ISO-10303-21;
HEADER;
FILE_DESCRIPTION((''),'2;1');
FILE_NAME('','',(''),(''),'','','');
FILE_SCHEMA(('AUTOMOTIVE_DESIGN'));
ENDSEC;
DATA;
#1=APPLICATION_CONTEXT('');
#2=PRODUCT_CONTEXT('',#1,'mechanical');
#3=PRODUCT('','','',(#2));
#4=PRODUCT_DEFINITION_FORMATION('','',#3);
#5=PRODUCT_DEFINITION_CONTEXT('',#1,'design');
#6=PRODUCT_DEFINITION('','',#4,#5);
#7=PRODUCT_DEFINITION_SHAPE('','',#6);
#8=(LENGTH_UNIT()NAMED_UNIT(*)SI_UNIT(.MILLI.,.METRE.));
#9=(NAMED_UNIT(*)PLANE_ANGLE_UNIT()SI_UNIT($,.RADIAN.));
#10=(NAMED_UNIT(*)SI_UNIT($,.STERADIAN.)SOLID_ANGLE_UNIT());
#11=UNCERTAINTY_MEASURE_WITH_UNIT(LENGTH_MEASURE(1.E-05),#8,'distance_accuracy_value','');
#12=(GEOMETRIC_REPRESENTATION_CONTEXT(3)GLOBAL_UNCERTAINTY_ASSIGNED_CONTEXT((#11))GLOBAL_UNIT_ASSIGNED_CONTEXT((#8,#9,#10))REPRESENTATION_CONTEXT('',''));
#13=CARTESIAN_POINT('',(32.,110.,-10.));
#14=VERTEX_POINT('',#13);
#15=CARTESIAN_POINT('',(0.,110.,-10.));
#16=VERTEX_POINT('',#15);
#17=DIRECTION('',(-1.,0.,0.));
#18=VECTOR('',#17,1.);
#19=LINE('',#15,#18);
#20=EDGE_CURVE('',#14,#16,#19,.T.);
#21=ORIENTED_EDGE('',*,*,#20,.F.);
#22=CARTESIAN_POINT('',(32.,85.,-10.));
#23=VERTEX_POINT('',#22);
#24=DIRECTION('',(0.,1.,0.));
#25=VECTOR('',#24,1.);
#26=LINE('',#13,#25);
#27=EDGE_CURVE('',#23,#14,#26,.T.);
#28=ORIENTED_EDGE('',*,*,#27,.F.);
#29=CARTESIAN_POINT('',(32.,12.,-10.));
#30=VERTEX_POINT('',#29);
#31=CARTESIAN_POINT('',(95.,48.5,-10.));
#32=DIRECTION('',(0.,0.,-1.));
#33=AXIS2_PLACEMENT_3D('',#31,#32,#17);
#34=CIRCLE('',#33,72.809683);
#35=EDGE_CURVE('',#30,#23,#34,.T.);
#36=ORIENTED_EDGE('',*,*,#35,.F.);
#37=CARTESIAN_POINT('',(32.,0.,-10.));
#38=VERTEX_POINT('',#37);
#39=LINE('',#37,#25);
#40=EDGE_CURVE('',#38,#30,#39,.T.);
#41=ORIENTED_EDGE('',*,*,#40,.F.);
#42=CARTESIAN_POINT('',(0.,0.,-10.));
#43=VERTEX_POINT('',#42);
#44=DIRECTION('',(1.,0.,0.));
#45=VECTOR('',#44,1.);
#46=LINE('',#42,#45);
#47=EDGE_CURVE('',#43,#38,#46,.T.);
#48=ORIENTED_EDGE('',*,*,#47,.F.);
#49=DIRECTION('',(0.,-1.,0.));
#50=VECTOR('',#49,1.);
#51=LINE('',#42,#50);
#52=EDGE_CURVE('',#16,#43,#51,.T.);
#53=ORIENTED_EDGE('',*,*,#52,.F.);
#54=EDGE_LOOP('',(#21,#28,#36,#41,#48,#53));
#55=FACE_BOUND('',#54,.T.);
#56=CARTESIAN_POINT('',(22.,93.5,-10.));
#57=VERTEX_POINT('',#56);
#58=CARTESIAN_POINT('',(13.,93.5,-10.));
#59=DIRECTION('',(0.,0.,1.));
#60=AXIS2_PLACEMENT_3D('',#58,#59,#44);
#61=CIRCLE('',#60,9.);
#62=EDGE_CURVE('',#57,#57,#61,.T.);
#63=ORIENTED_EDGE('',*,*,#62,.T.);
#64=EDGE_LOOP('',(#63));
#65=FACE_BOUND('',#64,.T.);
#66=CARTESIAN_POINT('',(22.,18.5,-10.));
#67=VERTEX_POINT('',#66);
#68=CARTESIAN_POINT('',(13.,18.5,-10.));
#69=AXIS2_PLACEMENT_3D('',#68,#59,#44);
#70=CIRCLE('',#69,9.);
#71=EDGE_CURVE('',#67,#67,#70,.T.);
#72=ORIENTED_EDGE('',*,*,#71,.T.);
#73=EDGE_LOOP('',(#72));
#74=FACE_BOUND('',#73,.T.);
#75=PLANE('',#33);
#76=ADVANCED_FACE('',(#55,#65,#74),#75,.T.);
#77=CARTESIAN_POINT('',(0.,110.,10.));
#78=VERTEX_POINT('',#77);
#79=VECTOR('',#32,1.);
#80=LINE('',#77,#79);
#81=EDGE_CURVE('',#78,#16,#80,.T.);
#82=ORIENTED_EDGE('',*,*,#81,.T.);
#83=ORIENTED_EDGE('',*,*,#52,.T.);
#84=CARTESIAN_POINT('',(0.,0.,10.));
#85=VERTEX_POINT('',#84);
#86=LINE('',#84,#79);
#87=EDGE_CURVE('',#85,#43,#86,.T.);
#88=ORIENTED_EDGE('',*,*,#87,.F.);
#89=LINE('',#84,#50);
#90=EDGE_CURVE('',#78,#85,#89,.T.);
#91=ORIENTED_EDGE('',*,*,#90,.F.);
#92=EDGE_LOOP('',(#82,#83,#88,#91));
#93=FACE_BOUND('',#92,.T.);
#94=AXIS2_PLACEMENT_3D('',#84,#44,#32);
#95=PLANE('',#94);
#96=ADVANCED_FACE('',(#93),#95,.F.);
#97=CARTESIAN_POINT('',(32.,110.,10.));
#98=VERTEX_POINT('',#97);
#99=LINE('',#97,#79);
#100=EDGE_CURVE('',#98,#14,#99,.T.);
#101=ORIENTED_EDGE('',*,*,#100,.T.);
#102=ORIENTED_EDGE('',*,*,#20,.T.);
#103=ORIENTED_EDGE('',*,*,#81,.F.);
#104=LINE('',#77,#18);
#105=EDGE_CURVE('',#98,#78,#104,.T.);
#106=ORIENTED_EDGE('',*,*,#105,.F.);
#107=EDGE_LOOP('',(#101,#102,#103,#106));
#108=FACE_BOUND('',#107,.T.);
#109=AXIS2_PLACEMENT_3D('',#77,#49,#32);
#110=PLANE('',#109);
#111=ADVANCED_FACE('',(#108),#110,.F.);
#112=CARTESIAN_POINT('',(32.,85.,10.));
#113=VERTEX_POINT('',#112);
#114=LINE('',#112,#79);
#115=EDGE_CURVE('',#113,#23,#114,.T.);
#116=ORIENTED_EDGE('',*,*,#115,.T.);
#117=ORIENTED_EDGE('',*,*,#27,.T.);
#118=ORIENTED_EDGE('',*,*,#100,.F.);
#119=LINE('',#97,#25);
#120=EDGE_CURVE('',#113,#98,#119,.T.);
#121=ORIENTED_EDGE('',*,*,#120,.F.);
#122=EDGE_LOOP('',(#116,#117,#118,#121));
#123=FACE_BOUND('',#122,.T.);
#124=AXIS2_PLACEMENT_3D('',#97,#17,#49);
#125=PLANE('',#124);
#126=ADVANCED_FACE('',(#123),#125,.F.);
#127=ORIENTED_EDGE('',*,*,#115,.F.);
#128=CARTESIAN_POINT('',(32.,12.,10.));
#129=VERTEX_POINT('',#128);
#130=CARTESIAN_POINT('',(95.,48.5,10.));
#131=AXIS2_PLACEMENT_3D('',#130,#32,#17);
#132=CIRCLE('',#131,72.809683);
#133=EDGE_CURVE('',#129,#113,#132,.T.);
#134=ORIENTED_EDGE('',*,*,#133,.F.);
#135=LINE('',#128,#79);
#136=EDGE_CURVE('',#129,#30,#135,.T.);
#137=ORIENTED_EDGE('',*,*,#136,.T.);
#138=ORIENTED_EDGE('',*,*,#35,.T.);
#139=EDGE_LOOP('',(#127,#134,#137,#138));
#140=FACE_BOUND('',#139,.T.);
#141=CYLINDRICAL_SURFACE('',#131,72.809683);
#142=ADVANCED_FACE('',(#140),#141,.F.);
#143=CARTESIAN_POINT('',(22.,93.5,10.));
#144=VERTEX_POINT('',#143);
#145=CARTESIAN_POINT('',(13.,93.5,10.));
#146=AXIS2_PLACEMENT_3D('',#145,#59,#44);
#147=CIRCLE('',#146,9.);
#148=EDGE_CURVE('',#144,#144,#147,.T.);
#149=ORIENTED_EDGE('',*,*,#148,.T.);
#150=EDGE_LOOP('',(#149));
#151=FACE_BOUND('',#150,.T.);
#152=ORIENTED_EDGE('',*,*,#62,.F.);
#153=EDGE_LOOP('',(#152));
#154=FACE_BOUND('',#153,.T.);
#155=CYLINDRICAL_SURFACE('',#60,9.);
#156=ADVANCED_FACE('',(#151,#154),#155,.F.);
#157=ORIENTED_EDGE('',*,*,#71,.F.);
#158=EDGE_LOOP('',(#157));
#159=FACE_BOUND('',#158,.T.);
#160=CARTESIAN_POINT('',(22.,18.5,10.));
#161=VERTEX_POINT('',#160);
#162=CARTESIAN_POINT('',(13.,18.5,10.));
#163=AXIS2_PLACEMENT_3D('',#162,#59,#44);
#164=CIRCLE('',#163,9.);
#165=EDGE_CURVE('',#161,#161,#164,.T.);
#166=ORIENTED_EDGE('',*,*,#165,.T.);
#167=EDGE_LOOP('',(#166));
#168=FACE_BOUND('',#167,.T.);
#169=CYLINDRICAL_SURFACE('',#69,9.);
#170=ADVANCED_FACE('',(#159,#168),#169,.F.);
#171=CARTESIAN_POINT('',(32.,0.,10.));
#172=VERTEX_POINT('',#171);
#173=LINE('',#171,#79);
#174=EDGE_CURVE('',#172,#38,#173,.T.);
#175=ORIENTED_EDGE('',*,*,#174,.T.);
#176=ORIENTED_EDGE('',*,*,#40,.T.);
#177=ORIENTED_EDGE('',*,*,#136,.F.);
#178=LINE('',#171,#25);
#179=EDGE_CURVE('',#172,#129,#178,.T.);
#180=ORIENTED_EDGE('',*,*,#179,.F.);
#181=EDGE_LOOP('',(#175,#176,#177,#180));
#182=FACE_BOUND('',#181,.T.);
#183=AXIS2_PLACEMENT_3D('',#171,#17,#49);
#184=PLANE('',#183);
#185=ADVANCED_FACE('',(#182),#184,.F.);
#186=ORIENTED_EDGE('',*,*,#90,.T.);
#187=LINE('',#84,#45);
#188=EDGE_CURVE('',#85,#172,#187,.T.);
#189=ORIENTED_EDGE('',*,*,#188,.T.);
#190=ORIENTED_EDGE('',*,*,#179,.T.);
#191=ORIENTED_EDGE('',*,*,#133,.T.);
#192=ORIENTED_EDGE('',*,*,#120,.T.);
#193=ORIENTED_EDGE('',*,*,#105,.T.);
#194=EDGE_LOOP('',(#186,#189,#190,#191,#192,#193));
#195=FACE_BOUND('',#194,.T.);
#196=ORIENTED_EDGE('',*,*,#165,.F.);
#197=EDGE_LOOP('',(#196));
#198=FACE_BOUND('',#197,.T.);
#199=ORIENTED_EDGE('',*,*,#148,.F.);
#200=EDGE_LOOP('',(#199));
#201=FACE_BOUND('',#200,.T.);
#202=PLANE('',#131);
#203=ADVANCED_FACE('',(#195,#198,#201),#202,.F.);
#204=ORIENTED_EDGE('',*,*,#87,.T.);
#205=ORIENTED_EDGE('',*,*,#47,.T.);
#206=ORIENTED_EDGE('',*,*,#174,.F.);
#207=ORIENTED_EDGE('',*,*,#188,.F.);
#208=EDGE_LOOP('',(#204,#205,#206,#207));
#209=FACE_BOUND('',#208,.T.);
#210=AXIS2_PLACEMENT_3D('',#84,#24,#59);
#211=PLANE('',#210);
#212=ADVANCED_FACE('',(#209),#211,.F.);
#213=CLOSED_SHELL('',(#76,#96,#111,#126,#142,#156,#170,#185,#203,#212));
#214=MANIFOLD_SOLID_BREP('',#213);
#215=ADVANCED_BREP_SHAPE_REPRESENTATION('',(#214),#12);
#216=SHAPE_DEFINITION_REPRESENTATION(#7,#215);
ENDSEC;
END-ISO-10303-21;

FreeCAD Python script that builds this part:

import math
import FreeCAD as App
import Part
import Sketcher

V = App.Vector
Q = App.Units.Quantity

doc = App.newDocument("Part")
body = doc.addObject("PartDesign::Body", "Body")

sketch1 = doc.addObject("Sketcher::SketchObject", "Sketch")
body.addObject(sketch1)
sketch1.AttachmentSupport = (doc.XY_Plane, [""])
sketch1.MapMode = "FlatFace"
sketch1.addGeometry([
    Part.LineSegment(V(0, 110, 0), V(0, 0, 0)),
    Part.LineSegment(V(0, 0, 0), V(32, 0, 0)),
    Part.LineSegment(V(32, 0, 0), V(32, 12, 0)),
    Part.ArcOfCircle(Part.Circle(V(95, 48, 0), V(0, 0, 1), 73), math.radians(150), math.radians(210)),
    Part.LineSegment(V(32, 85, 0), V(32, 110, 0)),
    Part.LineSegment(V(32, 110, 0), V(0, 110, 0)),
], False)
sketch1.addConstraint([
    Sketcher.Constraint("Coincident", 0, 2, 1, 1),
    Sketcher.Constraint("Coincident", 1, 2, 2, 1),
    Sketcher.Constraint("Coincident", 2, 2, 3, 2),
    Sketcher.Constraint("Coincident", 3, 1, 4, 1),
    Sketcher.Constraint("Coincident", 4, 2, 5, 1),
    Sketcher.Constraint("Coincident", 5, 2, 0, 1),
    Sketcher.Constraint("Vertical", 0),
    Sketcher.Constraint("Horizontal", 1),
    Sketcher.Constraint("Vertical", 2),
    Sketcher.Constraint("Vertical", 4),
    Sketcher.Constraint("Horizontal", 5),
    Sketcher.Constraint("Coincident", 0, 2, -1, 1),
    Sketcher.Constraint("Vertical", 2, 2, 3, 1),
    Sketcher.Constraint("DistanceX", 1, 1, 1, 2, Q("32 mm")),
    Sketcher.Constraint("DistanceY", 0, 2, 0, 1, Q("110 mm")),
    Sketcher.Constraint("DistanceY", 2, 1, 2, 2, Q("12 mm")),
    Sketcher.Constraint("DistanceY", 4, 1, 4, 2, Q("25 mm")),
    Sketcher.Constraint("DistanceX", -1, 1, 3, 3, Q("95 mm")),
])
pad1 = doc.addObject("PartDesign::Pad", "Pad")
body.addObject(pad1)
pad1.Profile = sketch1
pad1.Length = 20
pad1.Midplane = True

sketch2 = doc.addObject("Sketcher::SketchObject", "Sketch001")
body.addObject(sketch2)
sketch2.AttachmentSupport = (doc.XY_Plane, [""])
sketch2.MapMode = "FlatFace"
sketch2.AttachmentOffset = App.Placement(V(0, 0, 10), App.Rotation())
sketch2.addGeometry([
    Part.Circle(V(13, 94, 0), V(0, 0, 1), 9),
    Part.Circle(V(13, 18, 0), V(0, 0, 1), 9),
], False)
sketch2.addConstraint([
    Sketcher.Constraint("Equal", 0, 1),
    Sketcher.Constraint("Vertical", 0, 3, 1, 3),
    Sketcher.Constraint("Diameter", 0, Q("18 mm")),
    Sketcher.Constraint("DistanceX", -1, 1, 0, 3, Q("13 mm")),
    Sketcher.Constraint("DistanceY", 1, 3, 0, 3, Q("75 mm")),
    Sketcher.Constraint("DistanceY", -1, 1, 0, 3, Q("93.5 mm")),
])
pocket1 = doc.addObject("PartDesign::Pocket", "Pocket")
body.addObject(pocket1)
pocket1.Profile = sketch2
pocket1.Type = "ThroughAll"

doc.recompute()
